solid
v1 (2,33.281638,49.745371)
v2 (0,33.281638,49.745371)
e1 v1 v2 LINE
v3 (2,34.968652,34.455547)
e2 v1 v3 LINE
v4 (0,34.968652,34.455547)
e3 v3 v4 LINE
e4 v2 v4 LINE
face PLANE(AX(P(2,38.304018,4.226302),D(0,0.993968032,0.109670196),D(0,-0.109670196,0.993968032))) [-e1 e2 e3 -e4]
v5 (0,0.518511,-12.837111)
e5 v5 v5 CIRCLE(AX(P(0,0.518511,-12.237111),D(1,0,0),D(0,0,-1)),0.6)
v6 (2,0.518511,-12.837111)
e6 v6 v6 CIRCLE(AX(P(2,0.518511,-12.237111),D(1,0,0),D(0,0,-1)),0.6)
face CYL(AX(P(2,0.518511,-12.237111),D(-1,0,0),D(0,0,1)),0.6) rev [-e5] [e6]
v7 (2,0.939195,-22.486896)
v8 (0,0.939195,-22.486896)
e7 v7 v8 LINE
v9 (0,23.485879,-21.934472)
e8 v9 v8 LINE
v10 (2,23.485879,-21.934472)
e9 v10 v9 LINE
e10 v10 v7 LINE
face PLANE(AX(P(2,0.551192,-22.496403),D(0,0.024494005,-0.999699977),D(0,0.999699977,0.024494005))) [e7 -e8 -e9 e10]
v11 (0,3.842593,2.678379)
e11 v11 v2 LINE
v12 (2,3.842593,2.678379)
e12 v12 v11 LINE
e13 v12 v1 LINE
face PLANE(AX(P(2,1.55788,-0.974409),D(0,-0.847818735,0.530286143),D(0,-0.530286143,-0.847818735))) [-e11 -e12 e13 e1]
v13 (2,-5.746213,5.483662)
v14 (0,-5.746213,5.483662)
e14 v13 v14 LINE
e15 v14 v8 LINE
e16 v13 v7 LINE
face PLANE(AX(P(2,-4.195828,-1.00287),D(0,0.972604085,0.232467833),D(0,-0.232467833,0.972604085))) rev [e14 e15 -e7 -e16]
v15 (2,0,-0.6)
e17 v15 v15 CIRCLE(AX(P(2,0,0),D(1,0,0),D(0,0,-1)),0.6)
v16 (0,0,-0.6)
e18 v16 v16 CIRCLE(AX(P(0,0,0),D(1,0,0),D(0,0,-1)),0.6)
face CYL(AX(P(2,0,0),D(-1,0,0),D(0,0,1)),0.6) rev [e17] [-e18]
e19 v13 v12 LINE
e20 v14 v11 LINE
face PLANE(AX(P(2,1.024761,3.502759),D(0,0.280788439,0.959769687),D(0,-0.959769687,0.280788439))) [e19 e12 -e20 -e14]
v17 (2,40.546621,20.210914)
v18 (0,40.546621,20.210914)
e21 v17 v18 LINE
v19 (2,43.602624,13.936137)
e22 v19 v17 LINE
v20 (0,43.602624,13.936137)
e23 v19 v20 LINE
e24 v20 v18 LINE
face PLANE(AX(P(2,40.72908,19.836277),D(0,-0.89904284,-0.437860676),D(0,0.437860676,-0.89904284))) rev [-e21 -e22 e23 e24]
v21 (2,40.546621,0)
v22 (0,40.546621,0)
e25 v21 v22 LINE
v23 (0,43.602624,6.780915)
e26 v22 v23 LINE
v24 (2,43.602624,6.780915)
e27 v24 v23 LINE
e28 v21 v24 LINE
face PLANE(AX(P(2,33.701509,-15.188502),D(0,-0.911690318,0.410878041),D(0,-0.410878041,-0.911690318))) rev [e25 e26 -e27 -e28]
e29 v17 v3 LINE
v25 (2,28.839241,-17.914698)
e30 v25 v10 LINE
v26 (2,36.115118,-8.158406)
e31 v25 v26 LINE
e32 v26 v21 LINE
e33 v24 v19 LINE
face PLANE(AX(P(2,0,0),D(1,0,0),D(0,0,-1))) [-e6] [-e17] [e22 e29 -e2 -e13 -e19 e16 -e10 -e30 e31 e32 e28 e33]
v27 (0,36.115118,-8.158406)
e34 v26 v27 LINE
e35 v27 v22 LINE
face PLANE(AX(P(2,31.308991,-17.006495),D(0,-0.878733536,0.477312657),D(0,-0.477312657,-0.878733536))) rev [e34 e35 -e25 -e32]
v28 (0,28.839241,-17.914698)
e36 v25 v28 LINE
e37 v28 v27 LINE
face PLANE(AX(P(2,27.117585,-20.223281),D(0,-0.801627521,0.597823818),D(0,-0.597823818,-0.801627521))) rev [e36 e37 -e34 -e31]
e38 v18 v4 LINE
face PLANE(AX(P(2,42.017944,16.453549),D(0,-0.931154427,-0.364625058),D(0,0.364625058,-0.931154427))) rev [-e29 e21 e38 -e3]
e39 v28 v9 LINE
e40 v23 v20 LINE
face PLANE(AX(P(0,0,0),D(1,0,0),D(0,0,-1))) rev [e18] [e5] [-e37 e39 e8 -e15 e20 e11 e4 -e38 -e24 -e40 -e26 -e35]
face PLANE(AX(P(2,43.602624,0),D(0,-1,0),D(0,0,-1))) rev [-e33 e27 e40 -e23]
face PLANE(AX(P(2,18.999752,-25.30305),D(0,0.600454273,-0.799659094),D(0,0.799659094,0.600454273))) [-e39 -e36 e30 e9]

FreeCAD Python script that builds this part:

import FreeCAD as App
import Part
import Sketcher
Q = App.Units.Quantity

doc = App.newDocument("Part")
body = doc.addObject("PartDesign::Body", "Body")

# Sketch on YZ plane
sketch1 = doc.addObject("Sketcher::SketchObject", "Sketch")
body.addObject(sketch1)
sketch1.AttachmentSupport = (doc.YZ_Plane, [""])
sketch1.MapMode = "FlatFace"
sketch1.addGeometry([
    Part.LineSegment(App.Vector(-5.7, 5.5, 0), App.Vector(0.9, -22.5, 0)),  # 0
    Part.LineSegment(App.Vector(0.9, -22.5, 0), App.Vector(23.5, -21.9, 0)),  # 1
    Part.LineSegment(App.Vector(23.5, -21.9, 0), App.Vector(28.8, -17.9, 0)),  # 2
    Part.LineSegment(App.Vector(28.8, -17.9, 0), App.Vector(36.1, -8.2, 0)),  # 3
    Part.LineSegment(App.Vector(36.1, -8.2, 0), App.Vector(40.5, 0, 0)),  # 4
    Part.LineSegment(App.Vector(40.5, 0, 0), App.Vector(43.6, 6.8, 0)),  # 5
    Part.LineSegment(App.Vector(43.6, 6.8, 0), App.Vector(43.6, 13.9, 0)),  # 6
    Part.LineSegment(App.Vector(43.6, 13.9, 0), App.Vector(40.5, 20.2, 0)),  # 7
    Part.LineSegment(App.Vector(40.5, 20.2, 0), App.Vector(35, 34.5, 0)),  # 8
    Part.LineSegment(App.Vector(35, 34.5, 0), App.Vector(33.3, 49.7, 0)),  # 9
    Part.LineSegment(App.Vector(33.3, 49.7, 0), App.Vector(3.8, 2.7, 0)),  # 10
    Part.LineSegment(App.Vector(3.8, 2.7, 0), App.Vector(-5.7, 5.5, 0)),  # 11
    Part.Circle(App.Vector(0, 0, 0), App.Vector(0, 0, 1), 0.6),  # 12
    Part.Circle(App.Vector(0.5, -12.2, 0), App.Vector(0, 0, 1), 0.6),  # 13
], False)
sketch1.addConstraint([
    Sketcher.Constraint("Coincident", 0, 2, 1, 1),
    Sketcher.Constraint("Coincident", 1, 2, 2, 1),
    Sketcher.Constraint("Coincident", 2, 2, 3, 1),
    Sketcher.Constraint("Coincident", 3, 2, 4, 1),
    Sketcher.Constraint("Coincident", 4, 2, 5, 1),
    Sketcher.Constraint("Coincident", 5, 2, 6, 1),
    Sketcher.Constraint("Coincident", 6, 2, 7, 1),
    Sketcher.Constraint("Coincident", 7, 2, 8, 1),
    Sketcher.Constraint("Coincident", 8, 2, 9, 1),
    Sketcher.Constraint("Coincident", 9, 2, 10, 1),
    Sketcher.Constraint("Coincident", 10, 2, 11, 1),
    Sketcher.Constraint("Coincident", 11, 2, 0, 1),
    Sketcher.Constraint("Vertical", 6),
    Sketcher.Constraint("Coincident", 12, 3, -1, 1),
    Sketcher.Constraint("Equal", 12, 13),
    Sketcher.Constraint("PointOnObject", 4, 2, -1),
    Sketcher.Constraint("Vertical", 4, 2, 7, 2),
    Sketcher.Constraint("Diameter", 12, 1.2),
    Sketcher.Constraint("Angle", 5, Q("65.739996 deg")),
    Sketcher.Constraint("DistanceY", 5, 2, 7, 2, 13.429999),
    Sketcher.Constraint("DistanceY", 0, 2, 2, 2, 4.572198),
    Sketcher.Constraint("Distance", 0, 28.758421),
    Sketcher.Constraint("Distance", 1, 22.55345),
    Sketcher.Constraint("Distance", 5, 7.437739),
    Sketcher.Constraint("Distance", 8, 15.297821),
    Sketcher.Constraint("Distance", 9, 15.382611),
    Sketcher.Constraint("DistanceY", 6, 1, 6, 2, 7.155222),
    Sketcher.Constraint("DistanceX", -1, 1, 13, 3, 0.518511),
    Sketcher.Constraint("DistanceY", 13, 3, -1, 1, 12.237111),
    Sketcher.Constraint("DistanceX", -1, 1, 1, 2, 23.485879),
    Sketcher.Constraint("DistanceY", 1, 2, -1, 1, 21.934472),
    Sketcher.Constraint("DistanceX", -1, 1, 2, 2, 28.839241),
    Sketcher.Constraint("DistanceX", -1, 1, 4, 2, 40.546621),
    Sketcher.Constraint("DistanceX", -1, 1, 9, 2, 33.281638),
    Sketcher.Constraint("DistanceY", -1, 1, 9, 2, 49.745371),
    Sketcher.Constraint("DistanceY", -1, 1, 10, 2, 2.678379),
    Sketcher.Constraint("DistanceY", 2, 2, 3, 2, 9.756291),
    Sketcher.Constraint("DistanceX", 1, 2, 3, 2, 12.629239),
    Sketcher.Constraint("DistanceY", 3, 2, 5, 2, 14.939321),
    Sketcher.Constraint("DistanceY", 0, 2, 11, 2, 27.970558),
    Sketcher.Constraint("Distance", 10, 55.515396),
])
pad1 = doc.addObject("PartDesign::Pad", "Pad")
body.addObject(pad1)
pad1.Profile = sketch1
pad1.Length = 2

doc.recompute()
